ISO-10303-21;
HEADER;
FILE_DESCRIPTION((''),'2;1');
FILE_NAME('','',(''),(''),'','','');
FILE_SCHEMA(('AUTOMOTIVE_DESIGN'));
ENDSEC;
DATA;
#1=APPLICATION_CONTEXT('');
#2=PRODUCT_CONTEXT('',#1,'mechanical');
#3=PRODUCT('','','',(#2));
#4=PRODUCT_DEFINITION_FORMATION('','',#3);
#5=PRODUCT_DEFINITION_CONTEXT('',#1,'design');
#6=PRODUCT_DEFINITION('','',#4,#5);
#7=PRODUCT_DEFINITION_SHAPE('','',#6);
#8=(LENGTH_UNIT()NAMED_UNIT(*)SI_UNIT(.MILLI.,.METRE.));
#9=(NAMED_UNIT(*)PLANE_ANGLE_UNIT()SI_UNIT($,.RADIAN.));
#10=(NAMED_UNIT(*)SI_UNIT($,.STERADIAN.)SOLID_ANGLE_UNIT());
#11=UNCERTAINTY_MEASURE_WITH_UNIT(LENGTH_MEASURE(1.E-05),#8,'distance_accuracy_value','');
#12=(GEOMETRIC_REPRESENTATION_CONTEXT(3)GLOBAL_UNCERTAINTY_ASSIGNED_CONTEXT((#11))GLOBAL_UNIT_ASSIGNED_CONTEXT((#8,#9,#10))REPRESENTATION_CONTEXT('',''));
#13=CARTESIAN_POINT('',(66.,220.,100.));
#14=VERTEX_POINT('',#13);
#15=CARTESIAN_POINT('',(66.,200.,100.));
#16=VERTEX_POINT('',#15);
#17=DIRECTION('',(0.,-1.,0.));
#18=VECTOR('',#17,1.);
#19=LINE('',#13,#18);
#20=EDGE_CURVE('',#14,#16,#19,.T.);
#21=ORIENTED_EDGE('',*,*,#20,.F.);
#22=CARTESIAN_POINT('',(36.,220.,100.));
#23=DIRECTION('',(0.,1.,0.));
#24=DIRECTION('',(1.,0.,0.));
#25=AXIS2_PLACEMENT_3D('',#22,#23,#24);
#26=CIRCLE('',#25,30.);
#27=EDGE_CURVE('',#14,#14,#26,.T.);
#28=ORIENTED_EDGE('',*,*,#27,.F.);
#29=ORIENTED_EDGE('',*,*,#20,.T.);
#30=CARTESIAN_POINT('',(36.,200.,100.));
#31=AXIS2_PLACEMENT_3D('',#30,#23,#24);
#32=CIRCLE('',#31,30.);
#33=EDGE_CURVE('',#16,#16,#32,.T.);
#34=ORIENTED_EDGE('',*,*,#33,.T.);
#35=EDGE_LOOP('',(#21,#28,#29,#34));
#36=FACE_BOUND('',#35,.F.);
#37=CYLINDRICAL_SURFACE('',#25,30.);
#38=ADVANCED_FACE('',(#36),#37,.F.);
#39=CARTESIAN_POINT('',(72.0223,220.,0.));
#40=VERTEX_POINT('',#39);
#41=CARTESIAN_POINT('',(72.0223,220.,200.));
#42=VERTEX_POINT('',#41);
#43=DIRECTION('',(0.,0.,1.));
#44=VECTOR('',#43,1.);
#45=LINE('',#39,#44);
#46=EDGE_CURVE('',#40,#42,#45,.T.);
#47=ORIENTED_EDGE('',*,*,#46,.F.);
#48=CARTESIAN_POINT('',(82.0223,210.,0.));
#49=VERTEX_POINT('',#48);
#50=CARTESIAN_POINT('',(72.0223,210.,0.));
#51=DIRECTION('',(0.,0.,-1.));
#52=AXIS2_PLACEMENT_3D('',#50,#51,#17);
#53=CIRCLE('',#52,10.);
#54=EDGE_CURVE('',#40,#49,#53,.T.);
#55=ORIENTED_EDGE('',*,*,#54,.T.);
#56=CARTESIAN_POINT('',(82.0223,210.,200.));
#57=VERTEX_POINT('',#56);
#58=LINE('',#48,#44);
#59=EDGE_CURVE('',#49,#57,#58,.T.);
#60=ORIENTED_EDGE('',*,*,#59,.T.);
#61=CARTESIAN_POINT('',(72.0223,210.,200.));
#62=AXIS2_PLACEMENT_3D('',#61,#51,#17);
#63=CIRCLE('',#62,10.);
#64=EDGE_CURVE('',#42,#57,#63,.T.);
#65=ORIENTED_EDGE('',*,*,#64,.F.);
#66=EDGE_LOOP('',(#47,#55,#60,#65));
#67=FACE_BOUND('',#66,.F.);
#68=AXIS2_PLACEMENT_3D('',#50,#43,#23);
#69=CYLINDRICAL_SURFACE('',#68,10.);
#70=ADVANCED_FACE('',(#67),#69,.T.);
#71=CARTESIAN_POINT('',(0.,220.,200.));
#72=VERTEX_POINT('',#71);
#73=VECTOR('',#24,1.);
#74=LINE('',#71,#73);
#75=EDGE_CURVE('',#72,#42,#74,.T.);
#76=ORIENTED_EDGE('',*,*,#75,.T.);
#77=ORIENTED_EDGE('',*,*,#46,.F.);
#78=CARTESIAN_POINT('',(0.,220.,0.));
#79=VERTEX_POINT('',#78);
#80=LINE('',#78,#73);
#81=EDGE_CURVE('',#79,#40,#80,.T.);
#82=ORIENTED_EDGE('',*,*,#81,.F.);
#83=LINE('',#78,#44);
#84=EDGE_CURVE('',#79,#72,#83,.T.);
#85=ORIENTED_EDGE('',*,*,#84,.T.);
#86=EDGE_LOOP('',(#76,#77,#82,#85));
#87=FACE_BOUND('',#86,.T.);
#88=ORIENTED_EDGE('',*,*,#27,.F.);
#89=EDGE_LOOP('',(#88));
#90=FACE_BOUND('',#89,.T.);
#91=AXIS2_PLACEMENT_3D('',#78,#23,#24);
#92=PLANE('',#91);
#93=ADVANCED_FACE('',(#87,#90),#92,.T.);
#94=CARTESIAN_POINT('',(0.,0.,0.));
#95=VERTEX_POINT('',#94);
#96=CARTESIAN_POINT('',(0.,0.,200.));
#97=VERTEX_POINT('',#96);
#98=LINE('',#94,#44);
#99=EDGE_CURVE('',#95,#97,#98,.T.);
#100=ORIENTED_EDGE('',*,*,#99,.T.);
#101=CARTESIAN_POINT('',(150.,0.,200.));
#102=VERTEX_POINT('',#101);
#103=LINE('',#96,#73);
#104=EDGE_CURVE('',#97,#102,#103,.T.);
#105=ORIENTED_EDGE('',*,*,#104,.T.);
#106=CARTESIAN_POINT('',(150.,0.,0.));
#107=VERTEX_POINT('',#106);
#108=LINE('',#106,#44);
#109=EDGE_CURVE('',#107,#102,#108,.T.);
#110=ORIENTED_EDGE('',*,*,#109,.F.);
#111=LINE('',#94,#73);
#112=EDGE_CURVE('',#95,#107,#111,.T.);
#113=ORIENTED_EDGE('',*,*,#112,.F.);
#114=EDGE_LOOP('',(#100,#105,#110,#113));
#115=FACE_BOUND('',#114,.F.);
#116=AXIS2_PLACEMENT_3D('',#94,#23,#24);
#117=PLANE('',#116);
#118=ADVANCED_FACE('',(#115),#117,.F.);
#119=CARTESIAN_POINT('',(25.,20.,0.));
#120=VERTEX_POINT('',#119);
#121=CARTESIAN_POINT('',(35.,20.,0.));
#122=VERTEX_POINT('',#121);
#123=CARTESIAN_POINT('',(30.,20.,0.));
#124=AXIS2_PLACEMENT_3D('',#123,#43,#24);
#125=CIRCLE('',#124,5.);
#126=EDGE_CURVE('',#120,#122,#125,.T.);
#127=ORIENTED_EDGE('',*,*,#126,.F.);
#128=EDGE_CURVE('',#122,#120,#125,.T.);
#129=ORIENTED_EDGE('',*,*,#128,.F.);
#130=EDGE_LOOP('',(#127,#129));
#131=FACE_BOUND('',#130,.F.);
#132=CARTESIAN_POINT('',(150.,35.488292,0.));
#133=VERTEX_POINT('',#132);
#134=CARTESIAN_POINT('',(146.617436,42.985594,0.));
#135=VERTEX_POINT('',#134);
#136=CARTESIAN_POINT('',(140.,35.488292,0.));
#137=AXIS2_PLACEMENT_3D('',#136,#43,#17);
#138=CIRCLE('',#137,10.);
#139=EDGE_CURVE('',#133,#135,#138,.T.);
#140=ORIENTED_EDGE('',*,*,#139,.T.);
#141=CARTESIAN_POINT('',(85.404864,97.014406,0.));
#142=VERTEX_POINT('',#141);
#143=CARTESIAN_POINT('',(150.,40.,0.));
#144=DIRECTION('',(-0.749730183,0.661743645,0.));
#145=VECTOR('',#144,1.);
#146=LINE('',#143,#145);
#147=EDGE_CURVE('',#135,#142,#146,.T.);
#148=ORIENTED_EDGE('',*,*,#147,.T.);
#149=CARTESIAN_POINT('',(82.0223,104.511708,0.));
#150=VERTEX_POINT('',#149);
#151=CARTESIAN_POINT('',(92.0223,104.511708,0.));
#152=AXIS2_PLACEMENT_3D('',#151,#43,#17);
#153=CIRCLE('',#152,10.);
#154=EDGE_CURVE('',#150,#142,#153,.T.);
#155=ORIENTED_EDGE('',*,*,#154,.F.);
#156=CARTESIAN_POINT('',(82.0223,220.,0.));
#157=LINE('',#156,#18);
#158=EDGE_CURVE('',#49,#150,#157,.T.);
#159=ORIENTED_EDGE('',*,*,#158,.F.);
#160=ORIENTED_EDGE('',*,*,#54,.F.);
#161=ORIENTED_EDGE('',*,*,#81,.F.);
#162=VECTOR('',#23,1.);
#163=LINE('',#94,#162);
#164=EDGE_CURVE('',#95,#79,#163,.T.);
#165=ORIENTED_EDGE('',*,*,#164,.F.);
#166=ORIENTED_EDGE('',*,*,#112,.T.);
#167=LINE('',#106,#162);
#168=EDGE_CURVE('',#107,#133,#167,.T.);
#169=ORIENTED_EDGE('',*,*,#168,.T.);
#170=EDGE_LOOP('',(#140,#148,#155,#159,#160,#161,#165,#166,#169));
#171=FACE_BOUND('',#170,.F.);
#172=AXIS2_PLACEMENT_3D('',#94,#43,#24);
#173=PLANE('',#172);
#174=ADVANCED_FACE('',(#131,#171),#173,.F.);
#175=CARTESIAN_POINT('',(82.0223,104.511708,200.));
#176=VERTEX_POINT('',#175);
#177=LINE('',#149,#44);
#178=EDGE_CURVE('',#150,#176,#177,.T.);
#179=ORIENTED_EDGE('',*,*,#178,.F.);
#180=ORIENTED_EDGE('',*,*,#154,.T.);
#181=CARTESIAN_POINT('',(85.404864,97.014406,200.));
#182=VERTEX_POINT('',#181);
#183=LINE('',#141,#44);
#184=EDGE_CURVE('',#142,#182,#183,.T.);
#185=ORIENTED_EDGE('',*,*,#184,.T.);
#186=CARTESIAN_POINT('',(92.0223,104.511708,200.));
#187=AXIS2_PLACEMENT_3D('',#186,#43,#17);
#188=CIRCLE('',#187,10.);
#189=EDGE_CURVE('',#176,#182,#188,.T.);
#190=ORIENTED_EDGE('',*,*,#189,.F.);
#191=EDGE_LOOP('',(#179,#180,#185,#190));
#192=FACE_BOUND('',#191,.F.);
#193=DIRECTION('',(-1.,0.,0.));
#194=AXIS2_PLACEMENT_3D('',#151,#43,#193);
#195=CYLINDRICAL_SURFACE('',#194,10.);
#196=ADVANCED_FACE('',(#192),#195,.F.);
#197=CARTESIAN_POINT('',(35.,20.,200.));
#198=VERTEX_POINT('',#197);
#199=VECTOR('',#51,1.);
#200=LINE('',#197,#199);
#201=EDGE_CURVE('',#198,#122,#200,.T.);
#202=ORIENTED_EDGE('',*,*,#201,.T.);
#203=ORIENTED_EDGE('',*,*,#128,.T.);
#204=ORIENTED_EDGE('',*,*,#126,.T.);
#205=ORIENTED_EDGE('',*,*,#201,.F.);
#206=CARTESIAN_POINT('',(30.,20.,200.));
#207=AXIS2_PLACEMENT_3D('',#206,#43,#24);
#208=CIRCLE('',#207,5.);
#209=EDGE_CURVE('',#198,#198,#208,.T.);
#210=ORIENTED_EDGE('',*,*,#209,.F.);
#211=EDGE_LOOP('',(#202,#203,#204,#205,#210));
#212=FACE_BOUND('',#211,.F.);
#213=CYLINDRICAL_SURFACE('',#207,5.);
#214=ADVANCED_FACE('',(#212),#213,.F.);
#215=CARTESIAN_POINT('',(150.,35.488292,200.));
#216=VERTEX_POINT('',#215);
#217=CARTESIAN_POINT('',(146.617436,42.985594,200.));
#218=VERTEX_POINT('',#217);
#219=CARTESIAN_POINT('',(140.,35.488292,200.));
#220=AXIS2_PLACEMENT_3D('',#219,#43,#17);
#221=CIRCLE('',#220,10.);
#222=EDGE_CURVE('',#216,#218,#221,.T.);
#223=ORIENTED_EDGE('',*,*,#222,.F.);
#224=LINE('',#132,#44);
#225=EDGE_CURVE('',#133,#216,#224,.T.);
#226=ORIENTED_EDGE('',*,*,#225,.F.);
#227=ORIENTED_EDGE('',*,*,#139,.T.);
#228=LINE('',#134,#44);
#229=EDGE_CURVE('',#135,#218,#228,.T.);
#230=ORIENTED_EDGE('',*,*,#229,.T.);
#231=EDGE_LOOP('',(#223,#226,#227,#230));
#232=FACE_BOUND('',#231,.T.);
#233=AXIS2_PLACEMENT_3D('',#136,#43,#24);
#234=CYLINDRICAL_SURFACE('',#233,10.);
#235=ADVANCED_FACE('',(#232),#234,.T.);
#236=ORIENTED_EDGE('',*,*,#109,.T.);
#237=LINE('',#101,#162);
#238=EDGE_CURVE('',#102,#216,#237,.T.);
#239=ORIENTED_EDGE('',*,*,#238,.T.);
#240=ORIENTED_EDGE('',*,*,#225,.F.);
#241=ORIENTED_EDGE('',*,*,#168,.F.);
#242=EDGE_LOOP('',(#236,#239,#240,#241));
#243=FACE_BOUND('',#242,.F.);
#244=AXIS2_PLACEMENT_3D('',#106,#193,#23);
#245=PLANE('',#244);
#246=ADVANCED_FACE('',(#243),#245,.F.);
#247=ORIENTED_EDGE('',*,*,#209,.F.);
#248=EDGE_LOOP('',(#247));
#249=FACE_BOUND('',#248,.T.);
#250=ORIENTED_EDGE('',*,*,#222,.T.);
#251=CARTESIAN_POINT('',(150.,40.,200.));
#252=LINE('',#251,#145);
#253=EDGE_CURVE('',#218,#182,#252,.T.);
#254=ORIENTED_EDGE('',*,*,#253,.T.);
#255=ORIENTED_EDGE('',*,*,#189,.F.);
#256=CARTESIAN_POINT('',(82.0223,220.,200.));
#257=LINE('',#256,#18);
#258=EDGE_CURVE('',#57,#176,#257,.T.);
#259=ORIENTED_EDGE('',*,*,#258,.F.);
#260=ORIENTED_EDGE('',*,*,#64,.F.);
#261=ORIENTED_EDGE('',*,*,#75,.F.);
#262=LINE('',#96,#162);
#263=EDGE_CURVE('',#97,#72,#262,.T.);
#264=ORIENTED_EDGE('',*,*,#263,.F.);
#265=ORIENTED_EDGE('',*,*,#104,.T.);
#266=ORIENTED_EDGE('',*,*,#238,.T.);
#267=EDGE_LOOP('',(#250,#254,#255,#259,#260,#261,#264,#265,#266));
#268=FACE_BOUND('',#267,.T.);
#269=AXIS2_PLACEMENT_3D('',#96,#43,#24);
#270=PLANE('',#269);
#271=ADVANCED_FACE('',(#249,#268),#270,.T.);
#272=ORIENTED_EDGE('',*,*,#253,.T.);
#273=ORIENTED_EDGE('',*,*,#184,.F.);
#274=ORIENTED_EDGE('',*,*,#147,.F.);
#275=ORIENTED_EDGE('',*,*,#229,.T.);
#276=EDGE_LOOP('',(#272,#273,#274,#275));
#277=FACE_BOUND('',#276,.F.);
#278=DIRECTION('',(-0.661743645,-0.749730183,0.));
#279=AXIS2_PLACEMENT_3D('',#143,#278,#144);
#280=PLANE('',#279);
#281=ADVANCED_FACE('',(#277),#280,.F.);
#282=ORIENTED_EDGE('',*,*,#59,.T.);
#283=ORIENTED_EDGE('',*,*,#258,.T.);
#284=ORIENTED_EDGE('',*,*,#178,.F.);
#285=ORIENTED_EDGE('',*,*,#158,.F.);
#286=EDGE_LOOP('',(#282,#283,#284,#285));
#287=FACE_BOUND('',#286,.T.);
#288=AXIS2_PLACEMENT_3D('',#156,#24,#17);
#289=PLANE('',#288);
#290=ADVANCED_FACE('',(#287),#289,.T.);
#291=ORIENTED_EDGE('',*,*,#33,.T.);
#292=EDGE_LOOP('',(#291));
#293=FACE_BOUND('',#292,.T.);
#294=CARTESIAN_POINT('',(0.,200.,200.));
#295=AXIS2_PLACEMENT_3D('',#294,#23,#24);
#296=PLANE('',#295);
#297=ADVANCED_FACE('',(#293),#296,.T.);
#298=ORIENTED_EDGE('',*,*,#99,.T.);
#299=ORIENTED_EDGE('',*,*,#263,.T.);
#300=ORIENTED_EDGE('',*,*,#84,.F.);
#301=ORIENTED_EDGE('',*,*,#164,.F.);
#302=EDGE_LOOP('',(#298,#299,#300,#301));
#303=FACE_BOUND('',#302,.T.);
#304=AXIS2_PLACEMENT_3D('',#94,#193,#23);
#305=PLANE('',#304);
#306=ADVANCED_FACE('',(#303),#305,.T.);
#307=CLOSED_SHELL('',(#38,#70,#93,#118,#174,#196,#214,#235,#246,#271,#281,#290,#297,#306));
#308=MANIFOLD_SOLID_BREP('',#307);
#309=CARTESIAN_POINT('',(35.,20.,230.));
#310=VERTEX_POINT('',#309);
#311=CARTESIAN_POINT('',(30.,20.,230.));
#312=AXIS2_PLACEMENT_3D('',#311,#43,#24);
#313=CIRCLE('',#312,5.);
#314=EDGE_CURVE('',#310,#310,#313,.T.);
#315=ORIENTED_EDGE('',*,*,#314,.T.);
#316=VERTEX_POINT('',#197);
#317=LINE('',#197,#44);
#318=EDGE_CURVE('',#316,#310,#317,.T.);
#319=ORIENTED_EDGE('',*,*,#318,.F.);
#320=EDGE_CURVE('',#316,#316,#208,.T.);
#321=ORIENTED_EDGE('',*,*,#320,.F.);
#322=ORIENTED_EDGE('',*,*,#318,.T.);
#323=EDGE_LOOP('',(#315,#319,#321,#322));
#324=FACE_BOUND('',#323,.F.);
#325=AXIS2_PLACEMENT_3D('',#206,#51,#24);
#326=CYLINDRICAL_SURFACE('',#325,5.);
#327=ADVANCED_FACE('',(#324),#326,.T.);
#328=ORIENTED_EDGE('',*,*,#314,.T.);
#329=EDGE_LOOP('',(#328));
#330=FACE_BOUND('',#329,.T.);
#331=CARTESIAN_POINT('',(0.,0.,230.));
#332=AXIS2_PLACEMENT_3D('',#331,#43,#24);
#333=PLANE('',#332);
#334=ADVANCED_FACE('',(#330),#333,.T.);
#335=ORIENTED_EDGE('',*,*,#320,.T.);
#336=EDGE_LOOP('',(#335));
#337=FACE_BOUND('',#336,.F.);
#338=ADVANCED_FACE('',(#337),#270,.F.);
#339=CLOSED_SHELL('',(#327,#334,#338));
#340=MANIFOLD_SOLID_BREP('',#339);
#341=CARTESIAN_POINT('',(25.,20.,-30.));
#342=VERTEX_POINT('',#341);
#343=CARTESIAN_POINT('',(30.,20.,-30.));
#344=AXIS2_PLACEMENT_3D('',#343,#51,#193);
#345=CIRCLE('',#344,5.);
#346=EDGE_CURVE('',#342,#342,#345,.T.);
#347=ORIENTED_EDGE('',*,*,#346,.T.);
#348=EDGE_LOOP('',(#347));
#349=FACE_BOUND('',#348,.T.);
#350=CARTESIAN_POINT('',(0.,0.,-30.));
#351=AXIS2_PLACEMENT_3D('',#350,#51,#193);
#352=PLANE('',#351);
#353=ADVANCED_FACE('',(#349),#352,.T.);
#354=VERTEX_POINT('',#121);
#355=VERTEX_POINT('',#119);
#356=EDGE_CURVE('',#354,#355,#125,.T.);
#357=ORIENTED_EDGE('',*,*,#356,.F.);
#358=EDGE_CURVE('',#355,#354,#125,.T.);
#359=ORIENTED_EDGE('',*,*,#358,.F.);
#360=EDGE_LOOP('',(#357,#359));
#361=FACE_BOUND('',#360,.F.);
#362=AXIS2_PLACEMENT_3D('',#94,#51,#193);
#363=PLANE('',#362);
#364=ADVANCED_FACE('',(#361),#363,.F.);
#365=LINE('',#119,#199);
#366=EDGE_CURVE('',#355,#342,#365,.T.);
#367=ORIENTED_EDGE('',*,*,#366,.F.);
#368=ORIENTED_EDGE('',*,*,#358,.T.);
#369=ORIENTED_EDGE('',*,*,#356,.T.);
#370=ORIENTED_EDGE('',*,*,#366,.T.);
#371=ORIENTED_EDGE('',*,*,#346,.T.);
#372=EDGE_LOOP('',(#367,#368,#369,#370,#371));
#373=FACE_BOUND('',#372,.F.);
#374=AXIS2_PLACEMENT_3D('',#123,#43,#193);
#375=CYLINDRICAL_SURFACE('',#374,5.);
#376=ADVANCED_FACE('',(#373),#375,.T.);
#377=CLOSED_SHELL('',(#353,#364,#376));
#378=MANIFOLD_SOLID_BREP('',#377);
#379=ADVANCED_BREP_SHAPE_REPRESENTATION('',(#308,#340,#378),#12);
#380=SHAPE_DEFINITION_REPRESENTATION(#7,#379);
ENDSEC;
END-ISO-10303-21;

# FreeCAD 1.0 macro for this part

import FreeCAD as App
import Part
import Sketcher
Q = App.Units.Quantity


def edges_at(feature, points):
    """Names of the edges that pass closest to the given points."""
    edges = feature.Shape.Edges
    near = lambda p: min(range(len(edges)), key=lambda i: edges[i].distToShape(Part.Vertex(*p))[0])
    return sorted({f"Edge{near(p) + 1}" for p in points})


def add_polygon(sketch, points):
    """Adds a closed chain of lines whose ends are joined by coincident constraints."""
    first, n = sketch.GeometryCount, len(points)
    for a, b in zip(points, points[1:] + points[:1]):
        sketch.addGeometry(Part.LineSegment(App.Vector(*a, 0), App.Vector(*b, 0)), False)
    for i in range(n):
        sketch.addConstraint(Sketcher.Constraint("Coincident", first + i, 2, first + (i + 1) % n, 1))

doc = App.newDocument("Part")
body = doc.addObject("PartDesign::Body", "Body")
body.AllowCompound = True

sketch1 = doc.addObject("Sketcher::SketchObject", "Sketch")
body.addObject(sketch1)
sketch1.AttachmentSupport = (doc.XY_Plane, [""])
sketch1.MapMode = "FlatFace"
add_polygon(sketch1, [(0, 220), (0, 0), (150, 0), (150, 40), (82, 100), (82, 220)])
sketch1.addConstraint(Sketcher.Constraint("Vertical", 0))
sketch1.addConstraint(Sketcher.Constraint("Horizontal", 1))
sketch1.addConstraint(Sketcher.Constraint("Vertical", 2))
sketch1.addConstraint(Sketcher.Constraint("Vertical", 4))
sketch1.addConstraint(Sketcher.Constraint("Horizontal", 5))
sketch1.addConstraint(Sketcher.Constraint("Coincident", 0, 2, -1, 1))
sketch1.addConstraint(Sketcher.Constraint("DistanceX", 1, 1, 1, 2, Q("150 mm")))
sketch1.addConstraint(Sketcher.Constraint("DistanceY", 0, 2, 0, 1, Q("220 mm")))
sketch1.addConstraint(Sketcher.Constraint("DistanceY", 2, 1, 2, 2, Q("40 mm")))
sketch1.addConstraint(Sketcher.Constraint("DistanceY", 4, 1, 4, 2, Q("120 mm")))
sketch1.addConstraint(Sketcher.Constraint("DistanceX", 5, 2, 5, 1, Q("82.0223 mm")))
pad1 = doc.addObject("PartDesign::Pad", "Pad")
body.addObject(pad1)
pad1.Profile = sketch1
pad1.Length = 200

sketch2 = doc.addObject("Sketcher::SketchObject", "Sketch001")
body.addObject(sketch2)
sketch2.AttachmentSupport = (doc.XY_Plane, [""])
sketch2.MapMode = "FlatFace"
sketch2.AttachmentOffset = App.Placement(App.Vector(0, 0, 200), App.Rotation())
sketch2.addGeometry(Part.Circle(App.Vector(30, 20, 0), App.Vector(0, 0, 1), 5), False)
sketch2.addConstraint(Sketcher.Constraint("Diameter", 0, Q("10 mm")))
sketch2.addConstraint(Sketcher.Constraint("DistanceX", -1, 1, 0, 3, Q("30 mm")))
sketch2.addConstraint(Sketcher.Constraint("DistanceY", -1, 1, 0, 3, Q("20 mm")))
pocket1 = doc.addObject("PartDesign::Pocket", "Pocket")
body.addObject(pocket1)
pocket1.Profile = sketch2
pocket1.Length = 200
doc.recompute()

fillet = doc.addObject("PartDesign::Fillet", "Fillet")
body.addObject(fillet)
fillet.Base = (pocket1, edges_at(pocket1, [(82.022, 220, 100), (82.022, 100, 100), (150, 40, 100)]))
fillet.Radius = 10

sketch3 = doc.addObject("Sketcher::SketchObject", "Sketch002")
body.addObject(sketch3)
sketch3.AttachmentSupport = (doc.XZ_Plane, [""])
sketch3.MapMode = "FlatFace"
sketch3.AttachmentOffset = App.Placement(App.Vector(0, 0, -220), App.Rotation())
sketch3.addGeometry(Part.Circle(App.Vector(36, 100, 0), App.Vector(0, 0, 1), 30), False)
sketch3.addConstraint(Sketcher.Constraint("Diameter", 0, Q("60 mm")))
sketch3.addConstraint(Sketcher.Constraint("DistanceX", -1, 1, 0, 3, Q("36 mm")))
sketch3.addConstraint(Sketcher.Constraint("DistanceY", -1, 1, 0, 3, Q("100 mm")))
pocket2 = doc.addObject("PartDesign::Pocket", "Pocket001")
body.addObject(pocket2)
pocket2.Profile = sketch3
pocket2.Length = 20
pocket2.Reversed = True

sketch4 = doc.addObject("Sketcher::SketchObject", "Sketch003")
body.addObject(sketch4)
sketch4.AttachmentSupport = (doc.XY_Plane, [""])
sketch4.MapMode = "FlatFace"
sketch4.addGeometry(Part.Circle(App.Vector(30, 20, 0), App.Vector(0, 0, 1), 5), False)
sketch4.addConstraint(Sketcher.Constraint("Diameter", 0, Q("10 mm")))
sketch4.addConstraint(Sketcher.Constraint("DistanceX", -1, 1, 0, 3, Q("30 mm")))
sketch4.addConstraint(Sketcher.Constraint("DistanceY", -1, 1, 0, 3, Q("20 mm")))
pad2 = doc.addObject("PartDesign::Pad", "Pad001")
body.addObject(pad2)
pad2.Profile = sketch4
pad2.Length = 30
pad2.Reversed = True

sketch5 = doc.addObject("Sketcher::SketchObject", "Sketch004")
body.addObject(sketch5)
sketch5.AttachmentSupport = (doc.XY_Plane, [""])
sketch5.MapMode = "FlatFace"
sketch5.AttachmentOffset = App.Placement(App.Vector(0, 0, 200), App.Rotation())
sketch5.addGeometry(Part.Circle(App.Vector(30, 20, 0), App.Vector(0, 0, 1), 5), False)
sketch5.addConstraint(Sketcher.Constraint("Diameter", 0, Q("10 mm")))
sketch5.addConstraint(Sketcher.Constraint("DistanceX", -1, 1, 0, 3, Q("30 mm")))
sketch5.addConstraint(Sketcher.Constraint("DistanceY", -1, 1, 0, 3, Q("20 mm")))
pad3 = doc.addObject("PartDesign::Pad", "Pad002")
body.addObject(pad3)
pad3.Profile = sketch5
pad3.Length = 30

doc.recompute()
